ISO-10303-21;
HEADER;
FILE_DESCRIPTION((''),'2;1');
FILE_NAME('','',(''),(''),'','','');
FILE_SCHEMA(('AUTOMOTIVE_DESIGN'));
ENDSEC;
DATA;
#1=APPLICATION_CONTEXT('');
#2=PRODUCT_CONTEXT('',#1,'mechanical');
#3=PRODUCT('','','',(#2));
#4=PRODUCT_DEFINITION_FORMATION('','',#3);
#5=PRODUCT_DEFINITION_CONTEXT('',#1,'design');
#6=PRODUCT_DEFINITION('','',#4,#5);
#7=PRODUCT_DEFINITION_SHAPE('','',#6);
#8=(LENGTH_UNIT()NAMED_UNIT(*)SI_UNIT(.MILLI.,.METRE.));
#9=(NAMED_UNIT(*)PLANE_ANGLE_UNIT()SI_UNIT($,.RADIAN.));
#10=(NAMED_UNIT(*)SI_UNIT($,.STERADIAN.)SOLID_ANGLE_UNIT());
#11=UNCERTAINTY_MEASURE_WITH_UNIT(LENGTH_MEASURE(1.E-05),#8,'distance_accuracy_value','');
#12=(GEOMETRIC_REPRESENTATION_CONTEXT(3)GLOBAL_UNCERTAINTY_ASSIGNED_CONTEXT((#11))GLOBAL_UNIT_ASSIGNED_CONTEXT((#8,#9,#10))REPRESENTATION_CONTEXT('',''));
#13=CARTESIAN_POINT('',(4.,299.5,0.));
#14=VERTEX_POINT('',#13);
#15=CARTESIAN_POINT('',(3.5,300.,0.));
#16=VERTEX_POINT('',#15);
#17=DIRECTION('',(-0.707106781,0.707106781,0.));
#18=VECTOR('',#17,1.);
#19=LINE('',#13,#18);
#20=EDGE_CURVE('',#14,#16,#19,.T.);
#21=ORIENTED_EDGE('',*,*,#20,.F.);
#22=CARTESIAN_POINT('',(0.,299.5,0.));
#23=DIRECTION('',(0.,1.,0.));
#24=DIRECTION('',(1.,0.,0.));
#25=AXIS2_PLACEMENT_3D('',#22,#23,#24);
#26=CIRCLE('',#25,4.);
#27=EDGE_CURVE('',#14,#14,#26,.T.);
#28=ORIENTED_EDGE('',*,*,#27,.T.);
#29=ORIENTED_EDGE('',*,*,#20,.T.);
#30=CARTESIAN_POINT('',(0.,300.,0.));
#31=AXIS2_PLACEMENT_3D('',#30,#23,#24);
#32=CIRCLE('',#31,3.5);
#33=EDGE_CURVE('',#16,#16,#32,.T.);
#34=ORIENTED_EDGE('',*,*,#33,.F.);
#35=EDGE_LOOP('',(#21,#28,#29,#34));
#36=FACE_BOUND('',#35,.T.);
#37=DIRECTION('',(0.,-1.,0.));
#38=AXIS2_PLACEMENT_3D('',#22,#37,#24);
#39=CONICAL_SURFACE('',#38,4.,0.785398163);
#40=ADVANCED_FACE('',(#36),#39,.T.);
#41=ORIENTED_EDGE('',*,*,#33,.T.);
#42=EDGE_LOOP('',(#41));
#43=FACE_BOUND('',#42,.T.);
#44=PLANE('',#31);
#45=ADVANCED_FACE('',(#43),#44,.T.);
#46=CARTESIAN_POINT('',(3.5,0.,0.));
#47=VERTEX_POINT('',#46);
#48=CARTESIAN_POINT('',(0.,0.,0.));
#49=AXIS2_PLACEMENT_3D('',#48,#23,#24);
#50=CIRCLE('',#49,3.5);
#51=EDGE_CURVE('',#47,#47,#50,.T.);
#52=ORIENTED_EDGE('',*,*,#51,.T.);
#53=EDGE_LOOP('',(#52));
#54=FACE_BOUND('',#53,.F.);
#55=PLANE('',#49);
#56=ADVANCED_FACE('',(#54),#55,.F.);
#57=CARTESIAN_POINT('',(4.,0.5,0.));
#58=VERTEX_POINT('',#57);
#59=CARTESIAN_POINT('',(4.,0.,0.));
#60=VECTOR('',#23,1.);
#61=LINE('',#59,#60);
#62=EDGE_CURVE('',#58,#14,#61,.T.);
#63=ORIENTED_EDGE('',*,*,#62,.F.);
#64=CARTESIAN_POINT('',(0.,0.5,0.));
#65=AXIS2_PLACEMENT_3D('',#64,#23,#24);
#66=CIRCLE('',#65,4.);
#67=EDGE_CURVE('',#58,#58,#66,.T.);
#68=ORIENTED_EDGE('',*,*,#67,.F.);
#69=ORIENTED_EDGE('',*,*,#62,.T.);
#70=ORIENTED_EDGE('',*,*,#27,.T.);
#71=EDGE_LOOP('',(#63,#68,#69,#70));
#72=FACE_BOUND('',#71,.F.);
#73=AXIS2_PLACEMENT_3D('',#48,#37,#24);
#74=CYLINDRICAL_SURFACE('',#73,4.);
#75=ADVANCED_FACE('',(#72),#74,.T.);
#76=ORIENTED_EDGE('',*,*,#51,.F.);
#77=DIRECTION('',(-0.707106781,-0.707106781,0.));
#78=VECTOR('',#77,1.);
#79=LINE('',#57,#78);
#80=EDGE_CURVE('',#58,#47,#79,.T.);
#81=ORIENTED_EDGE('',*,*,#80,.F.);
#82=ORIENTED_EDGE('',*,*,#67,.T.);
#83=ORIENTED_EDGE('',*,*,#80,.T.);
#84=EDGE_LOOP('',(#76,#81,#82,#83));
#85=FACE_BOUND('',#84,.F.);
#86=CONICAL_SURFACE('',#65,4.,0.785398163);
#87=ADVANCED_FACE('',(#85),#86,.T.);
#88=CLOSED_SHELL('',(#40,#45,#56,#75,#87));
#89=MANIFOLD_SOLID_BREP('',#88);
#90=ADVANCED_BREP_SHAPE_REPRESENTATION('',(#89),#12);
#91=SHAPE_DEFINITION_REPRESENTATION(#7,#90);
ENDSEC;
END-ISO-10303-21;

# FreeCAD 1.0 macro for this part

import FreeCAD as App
import Part
import Sketcher
from FreeCAD import Vector
Q = App.Units.Quantity


def edges_at(feature, points):
    """Names of the edges that pass closest to the given points."""
    edges = feature.Shape.Edges
    near = lambda p: min(range(len(edges)), key=lambda i: edges[i].distToShape(Part.Vertex(*p))[0])
    return sorted({f"Edge{near(p) + 1}" for p in points})

doc = App.newDocument("Part")
body = doc.addObject("PartDesign::Body", "Body")

# Sketch on XZ plane
sketch1 = body.newObject("Sketcher::SketchObject", "Sketch")
sketch1.AttachmentSupport = (doc.getObject("XZ_Plane"), [""])
sketch1.MapMode = "FlatFace"
sketch1.addGeometry(Part.Circle(Vector(0, 0, 0), Vector(0, 0, 1), 4), False)
sketch1.addConstraint(Sketcher.Constraint("Coincident", 0, 3, -1, 1))
sketch1.addConstraint(Sketcher.Constraint("Diameter", 0, Q("8 mm")))
pad1 = body.newObject("PartDesign::Pad", "Pad")
pad1.Profile = sketch1
pad1.Length = 300
pad1.Reversed = True
doc.recompute()

chamfer = body.newObject("PartDesign::Chamfer", "Chamfer")
chamfer.Base = (pad1, edges_at(pad1, [(-4, 0, 0), (-4, 300, 0)]))
chamfer.Size = 0.5

doc.recompute()
